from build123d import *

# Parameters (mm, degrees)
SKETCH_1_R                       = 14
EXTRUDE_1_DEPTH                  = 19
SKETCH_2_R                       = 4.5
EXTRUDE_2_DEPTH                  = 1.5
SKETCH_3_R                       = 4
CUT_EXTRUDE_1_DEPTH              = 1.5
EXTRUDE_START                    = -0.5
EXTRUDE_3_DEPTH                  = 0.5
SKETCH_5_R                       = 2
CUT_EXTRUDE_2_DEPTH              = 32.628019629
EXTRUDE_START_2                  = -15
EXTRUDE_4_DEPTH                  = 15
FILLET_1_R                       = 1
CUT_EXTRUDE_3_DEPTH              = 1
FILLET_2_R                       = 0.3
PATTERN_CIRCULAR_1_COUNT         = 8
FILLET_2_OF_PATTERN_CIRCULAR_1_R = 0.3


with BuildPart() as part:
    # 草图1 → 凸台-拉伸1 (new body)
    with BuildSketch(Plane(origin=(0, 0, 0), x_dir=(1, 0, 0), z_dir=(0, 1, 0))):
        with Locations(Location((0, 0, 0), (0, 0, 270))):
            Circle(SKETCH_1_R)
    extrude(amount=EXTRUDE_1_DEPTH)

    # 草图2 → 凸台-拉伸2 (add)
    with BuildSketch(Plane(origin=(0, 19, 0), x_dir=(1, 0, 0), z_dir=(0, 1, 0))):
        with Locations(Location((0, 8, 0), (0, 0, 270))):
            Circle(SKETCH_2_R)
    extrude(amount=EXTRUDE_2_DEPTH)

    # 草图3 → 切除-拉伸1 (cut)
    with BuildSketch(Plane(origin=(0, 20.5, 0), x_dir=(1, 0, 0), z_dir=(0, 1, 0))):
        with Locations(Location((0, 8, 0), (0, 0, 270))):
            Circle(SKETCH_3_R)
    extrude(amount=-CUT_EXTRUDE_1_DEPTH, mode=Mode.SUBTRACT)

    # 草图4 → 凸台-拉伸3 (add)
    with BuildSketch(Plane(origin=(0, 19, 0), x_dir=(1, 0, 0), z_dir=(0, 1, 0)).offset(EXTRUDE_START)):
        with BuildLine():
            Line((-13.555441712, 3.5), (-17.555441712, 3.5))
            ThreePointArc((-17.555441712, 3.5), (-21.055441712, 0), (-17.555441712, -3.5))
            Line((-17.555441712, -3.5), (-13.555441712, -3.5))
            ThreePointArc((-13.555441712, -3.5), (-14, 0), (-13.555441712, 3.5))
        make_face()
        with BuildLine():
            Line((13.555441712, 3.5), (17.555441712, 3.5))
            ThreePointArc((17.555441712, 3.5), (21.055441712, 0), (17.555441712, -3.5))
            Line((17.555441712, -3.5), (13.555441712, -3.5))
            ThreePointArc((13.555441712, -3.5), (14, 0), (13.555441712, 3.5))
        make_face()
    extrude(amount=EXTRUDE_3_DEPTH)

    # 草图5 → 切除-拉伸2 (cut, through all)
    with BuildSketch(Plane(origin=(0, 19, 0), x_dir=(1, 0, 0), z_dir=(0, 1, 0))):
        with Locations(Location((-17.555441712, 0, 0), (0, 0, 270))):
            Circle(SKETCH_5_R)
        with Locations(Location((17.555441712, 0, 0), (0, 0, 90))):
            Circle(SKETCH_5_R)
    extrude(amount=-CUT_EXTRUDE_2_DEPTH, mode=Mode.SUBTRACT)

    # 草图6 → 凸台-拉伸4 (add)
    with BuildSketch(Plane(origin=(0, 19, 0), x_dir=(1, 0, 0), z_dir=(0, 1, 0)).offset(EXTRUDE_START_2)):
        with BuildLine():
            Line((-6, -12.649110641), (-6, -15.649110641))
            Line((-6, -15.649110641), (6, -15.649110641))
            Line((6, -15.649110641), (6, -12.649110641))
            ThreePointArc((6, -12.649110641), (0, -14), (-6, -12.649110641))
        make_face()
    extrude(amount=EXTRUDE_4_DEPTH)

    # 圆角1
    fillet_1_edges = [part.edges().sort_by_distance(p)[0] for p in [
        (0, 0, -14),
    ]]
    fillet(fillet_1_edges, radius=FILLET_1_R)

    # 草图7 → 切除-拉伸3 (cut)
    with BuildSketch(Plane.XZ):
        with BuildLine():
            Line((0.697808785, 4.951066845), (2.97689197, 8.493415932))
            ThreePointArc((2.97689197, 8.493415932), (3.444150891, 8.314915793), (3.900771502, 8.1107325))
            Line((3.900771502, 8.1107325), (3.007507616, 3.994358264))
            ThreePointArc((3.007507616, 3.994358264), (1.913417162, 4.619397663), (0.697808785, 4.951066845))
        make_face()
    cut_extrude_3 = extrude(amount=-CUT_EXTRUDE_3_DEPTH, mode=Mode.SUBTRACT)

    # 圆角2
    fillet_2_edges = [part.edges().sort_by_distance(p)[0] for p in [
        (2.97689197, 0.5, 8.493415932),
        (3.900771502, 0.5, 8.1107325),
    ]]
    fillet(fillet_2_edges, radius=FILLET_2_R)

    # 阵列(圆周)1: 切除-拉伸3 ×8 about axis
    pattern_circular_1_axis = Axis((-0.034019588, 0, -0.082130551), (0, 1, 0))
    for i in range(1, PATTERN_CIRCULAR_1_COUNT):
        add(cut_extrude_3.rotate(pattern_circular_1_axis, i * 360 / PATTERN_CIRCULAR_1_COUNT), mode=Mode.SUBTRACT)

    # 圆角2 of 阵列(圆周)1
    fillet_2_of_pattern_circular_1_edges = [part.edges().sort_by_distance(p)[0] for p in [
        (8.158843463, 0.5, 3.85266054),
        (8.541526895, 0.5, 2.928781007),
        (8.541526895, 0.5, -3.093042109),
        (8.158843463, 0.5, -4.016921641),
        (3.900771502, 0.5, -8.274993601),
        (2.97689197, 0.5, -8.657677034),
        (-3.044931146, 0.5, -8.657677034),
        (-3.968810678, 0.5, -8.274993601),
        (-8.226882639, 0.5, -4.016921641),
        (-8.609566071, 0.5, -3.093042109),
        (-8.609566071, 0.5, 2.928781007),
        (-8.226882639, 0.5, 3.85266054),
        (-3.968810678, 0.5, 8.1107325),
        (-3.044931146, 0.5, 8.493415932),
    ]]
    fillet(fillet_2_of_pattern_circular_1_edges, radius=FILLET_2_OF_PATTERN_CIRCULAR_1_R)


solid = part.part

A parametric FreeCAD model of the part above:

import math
import FreeCAD as App
import Part
import Sketcher
from FreeCAD import Vector


def edges_at(feature, points):
    """Names of the edges that pass closest to the given points."""
    edges = feature.Shape.Edges
    near = lambda p: min(range(len(edges)), key=lambda i: edges[i].distToShape(Part.Vertex(*p))[0])
    return sorted({f"Edge{near(p) + 1}" for p in points})

doc = App.newDocument("Part")
params = doc.addObject("Spreadsheet::Sheet", "Params")
for row, (alias, value) in enumerate([
    ("sketch1_diameter", "28 mm"),
    ("pad1_length", "19 mm"),
    ("sketch2_diameter", "9 mm"),
    ("pad2_length", "1.5 mm"),
    ("sketch3_diameter", "8 mm"),
    ("pocket1_length", "1.5 mm"),
    ("sketch4_radius", "14 mm"),
    ("sketch4_radius2", "3.5 mm"),
    ("sketch4_width", "4 mm"),
    ("pad3_length", "0.5 mm"),
    ("sketch5_diameter", "4 mm"),
    ("sketch6_radius", "14 mm"),
    ("sketch6_width", "12 mm"),
    ("sketch6_height", "3 mm"),
    ("pad4_length", "15 mm"),
    ("fillet_radius", "1 mm"),
    ("sketch7_radius", "5 mm"),
    ("sketch7_radius2", "9 mm"),
    ("pocket3_length", "1 mm"),
    ("fillet2_radius", "0.3 mm"),
    ("fillet3_radius", "0.3 mm"),
], start=1):
    params.set(f"A{row}", alias)
    params.set(f"B{row}", "=" + value)
    params.setAlias(f"B{row}", alias)

body = doc.addObject("PartDesign::Body", "Body")

# Sketch on XZ plane
sketch1 = doc.addObject("Sketcher::SketchObject", "Sketch")
body.addObject(sketch1)
sketch1.AttachmentSupport = (doc.XZ_Plane, [""])
sketch1.MapMode = "FlatFace"
sketch1.addGeometry(Part.Circle(Vector(0, 0, 0), Vector(0, 0, 1), 14), False)
sketch1.addConstraint([
    Sketcher.Constraint("Coincident", 0, 3, -1, 1),
    Sketcher.Constraint("Diameter", 0, 28.0),
])
sketch1.setExpression("Constraints[1]", "Params.sketch1_diameter")
pad1 = doc.addObject("PartDesign::Pad", "Pad")
body.addObject(pad1)
pad1.Profile = sketch1
pad1.setExpression("Length", "Params.pad1_length")
pad1.Reversed = True

# Sketch on XZ plane
sketch2 = doc.addObject("Sketcher::SketchObject", "Sketch001")
body.addObject(sketch2)
sketch2.AttachmentSupport = (doc.XZ_Plane, [""])
sketch2.MapMode = "FlatFace"
sketch2.AttachmentOffset = App.Placement(Vector(0, 0, -19), App.Rotation())
sketch2.addGeometry(Part.Circle(Vector(0, -8, 0), Vector(0, 0, 1), 4.5), False)
sketch2.addConstraint([
    Sketcher.Constraint("PointOnObject", 0, 3, -2),
    Sketcher.Constraint("Diameter", 0, 9.0),
    Sketcher.Constraint("DistanceY", 0, 3, -1, 1, 8.0),
])
sketch2.setExpression("Constraints[1]", "Params.sketch2_diameter")
pad2 = doc.addObject("PartDesign::Pad", "Pad001")
body.addObject(pad2)
pad2.Profile = sketch2
pad2.setExpression("Length", "Params.pad2_length")
pad2.Reversed = True

# Sketch on XZ plane
sketch3 = doc.addObject("Sketcher::SketchObject", "Sketch002")
body.addObject(sketch3)
sketch3.AttachmentSupport = (doc.XZ_Plane, [""])
sketch3.MapMode = "FlatFace"
sketch3.AttachmentOffset = App.Placement(Vector(0, 0, -20.5), App.Rotation())
sketch3.addGeometry(Part.Circle(Vector(0, -8, 0), Vector(0, 0, 1), 4), False)
sketch3.addConstraint([
    Sketcher.Constraint("PointOnObject", 0, 3, -2),
    Sketcher.Constraint("Diameter", 0, 8.0),
    Sketcher.Constraint("DistanceY", 0, 3, -1, 1, 8.0),
])
sketch3.setExpression("Constraints[1]", "Params.sketch3_diameter")
pocket1 = doc.addObject("PartDesign::Pocket", "Pocket")
body.addObject(pocket1)
pocket1.Profile = sketch3
pocket1.setExpression("Length", "Params.pocket1_length")
pocket1.Reversed = True

# Sketch on XZ plane
sketch4 = doc.addObject("Sketcher::SketchObject", "Sketch003")
body.addObject(sketch4)
sketch4.AttachmentSupport = (doc.XZ_Plane, [""])
sketch4.MapMode = "FlatFace"
sketch4.AttachmentOffset = App.Placement(Vector(0, 0, -18.5), App.Rotation())
sketch4.addGeometry([
    Part.LineSegment(Vector(-13.555442, -3.5, 0), Vector(-17.555442, -3.5, 0)),  # 0
    Part.ArcOfCircle(Part.Circle(Vector(-17.555442, 0, 0), Vector(0, 0, 1), 3.5), math.radians(90), math.radians(270)),  # 1
    Part.LineSegment(Vector(-17.555442, 3.5, 0), Vector(-13.555442, 3.5, 0)),  # 2
    Part.ArcOfCircle(Part.Circle(Vector(0, 0, 0), Vector(0, 0, 1), 14), math.radians(165.522488), math.radians(194.477512)),  # 3
    Part.LineSegment(Vector(17.555442, -3.5, 0), Vector(13.555442, -3.5, 0)),  # 4
    Part.ArcOfCircle(Part.Circle(Vector(0, 0, 0), Vector(0, 0, 1), 14), math.radians(-14.477512), math.radians(14.477512)),  # 5
    Part.LineSegment(Vector(13.555442, 3.5, 0), Vector(17.555442, 3.5, 0)),  # 6
    Part.ArcOfCircle(Part.Circle(Vector(17.555442, 0, 0), Vector(0, 0, 1), 3.5), math.radians(-90), math.radians(90)),  # 7
], False)
sketch4.addConstraint([
    Sketcher.Constraint("Tangent", 0, 2, 1, 2),
    Sketcher.Constraint("Tangent", 1, 1, 2, 1),
    Sketcher.Constraint("Coincident", 2, 2, 3, 1),
    Sketcher.Constraint("Coincident", 3, 2, 0, 1),
    Sketcher.Constraint("Coincident", 4, 2, 5, 1),
    Sketcher.Constraint("Coincident", 5, 2, 6, 1),
    Sketcher.Constraint("Tangent", 6, 2, 7, 2),
    Sketcher.Constraint("Tangent", 7, 1, 4, 1),
    Sketcher.Constraint("Horizontal", 0),
    Sketcher.Constraint("Horizontal", 2),
    Sketcher.Constraint("Horizontal", 4),
    Sketcher.Constraint("Horizontal", 6),
    Sketcher.Constraint("Coincident", 3, 3, -1, 1),
    Sketcher.Constraint("Coincident", 5, 3, -1, 1),
    Sketcher.Constraint("Equal", 3, 5),
    Sketcher.Constraint("Equal", 1, 7),
    Sketcher.Constraint("Symmetric", 1, 3, 7, 3, -1, 1),
    Sketcher.Constraint("PointOnObject", 1, 3, -1),
    Sketcher.Constraint("Radius", 3, 14.0),
    Sketcher.Constraint("Radius", 1, 3.5),
    Sketcher.Constraint("DistanceX", 0, 2, 0, 1, 4.0),
])
sketch4.setExpression("Constraints[18]", "Params.sketch4_radius")
sketch4.setExpression("Constraints[19]", "Params.sketch4_radius2")
sketch4.setExpression("Constraints[20]", "Params.sketch4_width")
pad3 = doc.addObject("PartDesign::Pad", "Pad002")
body.addObject(pad3)
pad3.Profile = sketch4
pad3.setExpression("Length", "Params.pad3_length")
pad3.Reversed = True

# Sketch on XZ plane
sketch5 = doc.addObject("Sketcher::SketchObject", "Sketch004")
body.addObject(sketch5)
sketch5.AttachmentSupport = (doc.XZ_Plane, [""])
sketch5.MapMode = "FlatFace"
sketch5.AttachmentOffset = App.Placement(Vector(0, 0, -19), App.Rotation())
sketch5.addGeometry([
    Part.Circle(Vector(-17.555442, 0, 0), Vector(0, 0, 1), 2),
    Part.Circle(Vector(17.555442, 0, 0), Vector(0, 0, 1), 2),
], False)
sketch5.addConstraint([
    Sketcher.Constraint("Equal", 0, 1),
    Sketcher.Constraint("Symmetric", 0, 3, 1, 3, -1, 1),
    Sketcher.Constraint("PointOnObject", 0, 3, -1),
    Sketcher.Constraint("Diameter", 0, 4.0),
    Sketcher.Constraint("DistanceX", 0, 3, -1, 1, 17.555442),
])
sketch5.setExpression("Constraints[3]", "Params.sketch5_diameter")
pocket2 = doc.addObject("PartDesign::Pocket", "Pocket001")
body.addObject(pocket2)
pocket2.Profile = sketch5
pocket2.Type = "ThroughAll"
pocket2.Reversed = True

# Sketch on XZ plane
sketch6 = doc.addObject("Sketcher::SketchObject", "Sketch005")
body.addObject(sketch6)
sketch6.AttachmentSupport = (doc.XZ_Plane, [""])
sketch6.MapMode = "FlatFace"
sketch6.AttachmentOffset = App.Placement(Vector(0, 0, -4), App.Rotation())
sketch6.addGeometry([
    Part.LineSegment(Vector(-6, 12.649111, 0), Vector(-6, 15.649111, 0)),
    Part.LineSegment(Vector(-6, 15.649111, 0), Vector(6, 15.649111, 0)),
    Part.LineSegment(Vector(6, 15.649111, 0), Vector(6, 12.649111, 0)),
    Part.ArcOfCircle(Part.Circle(Vector(0, 0, 0), Vector(0, 0, 1), 14), math.radians(64.623066), math.radians(115.376934)),
], False)
sketch6.addConstraint([
    Sketcher.Constraint("Coincident", 0, 2, 1, 1),
    Sketcher.Constraint("Coincident", 1, 2, 2, 1),
    Sketcher.Constraint("Coincident", 2, 2, 3, 1),
    Sketcher.Constraint("Coincident", 3, 2, 0, 1),
    Sketcher.Constraint("Vertical", 0),
    Sketcher.Constraint("Horizontal", 1),
    Sketcher.Constraint("Vertical", 2),
    Sketcher.Constraint("Coincident", 3, 3, -1, 1),
    Sketcher.Constraint("Horizontal", 2, 2, 3, 2),
    Sketcher.Constraint("Radius", 3, 14.0),
    Sketcher.Constraint("DistanceX", 1, 1, 1, 2, 12.0),
    Sketcher.Constraint("DistanceY", 0, 1, 0, 2, 3.0),
])
sketch6.setExpression("Constraints[9]", "Params.sketch6_radius")
sketch6.setExpression("Constraints[10]", "Params.sketch6_width")
sketch6.setExpression("Constraints[11]", "Params.sketch6_height")
pad4 = doc.addObject("PartDesign::Pad", "Pad003")
body.addObject(pad4)
pad4.Profile = sketch6
pad4.setExpression("Length", "Params.pad4_length")
pad4.Reversed = True
doc.recompute()

fillet = doc.addObject("PartDesign::Fillet", "Fillet")
body.addObject(fillet)
fillet.Base = (pad4, edges_at(pad4, [(0, 0, -14)]))
fillet.setExpression("Radius", "Params.fillet_radius")

# Sketch on XZ plane
sketch7 = doc.addObject("Sketcher::SketchObject", "Sketch006")
body.addObject(sketch7)
sketch7.AttachmentSupport = (doc.XZ_Plane, [""])
sketch7.MapMode = "FlatFace"
sketch7.addGeometry([
    Part.LineSegment(Vector(2.976892, 8.493416, 0), Vector(0.697809, 4.951067, 0)),
    Part.ArcOfCircle(Part.Circle(Vector(0, 0, 0), Vector(0, 0, 1), 5), math.radians(53.022488), math.radians(81.977512)),
    Part.LineSegment(Vector(3.007508, 3.994358, 0), Vector(3.900772, 8.110732, 0)),
    Part.ArcOfCircle(Part.Circle(Vector(0, 0, 0), Vector(0, 0, 1), 9), math.radians(64.315261), math.radians(70.684739)),
], False)
sketch7.addConstraint([
    Sketcher.Constraint("Coincident", 0, 2, 1, 2),
    Sketcher.Constraint("Coincident", 1, 1, 2, 1),
    Sketcher.Constraint("Coincident", 2, 2, 3, 1),
    Sketcher.Constraint("Coincident", 3, 2, 0, 1),
    Sketcher.Constraint("Coincident", 1, 3, -1, 1),
    Sketcher.Constraint("Coincident", 3, 3, -1, 1),
    Sketcher.Constraint("Equal", 0, 2),
    Sketcher.Constraint("Radius", 1, 5.0),
    Sketcher.Constraint("Radius", 3, 9.0),
    Sketcher.Constraint("DistanceX", 0, 2, 1, 1, 2.309699),
    Sketcher.Constraint("Distance", 0, 4.21218),
    Sketcher.Constraint("DistanceX", -1, 1, 0, 2, 0.697809),
])
sketch7.setExpression("Constraints[7]", "Params.sketch7_radius")
sketch7.setExpression("Constraints[8]", "Params.sketch7_radius2")
pocket3 = doc.addObject("PartDesign::Pocket", "Pocket002")
body.addObject(pocket3)
pocket3.Profile = sketch7
pocket3.setExpression("Length", "Params.pocket3_length")
doc.recompute()

fillet2 = doc.addObject("PartDesign::Fillet", "Fillet001")
body.addObject(fillet2)
fillet2.Base = (pocket3, edges_at(pocket3, [(2.977, 0.5, 8.493), (3.901, 0.5, 8.111)]))
fillet2.setExpression("Radius", "Params.fillet2_radius")
doc.recompute()

datumline = doc.addObject("PartDesign::Line", "DatumLine")
body.addObject(datumline)
datumline.Placement = App.Placement(Vector(-0.03402, 0, -0.082131), App.Rotation(Vector(0, 0, 1), Vector(0, 1, 0)))
polarpattern = doc.addObject("PartDesign::PolarPattern", "PolarPattern")
body.addObject(polarpattern)
polarpattern.Originals = [pocket3]
polarpattern.Axis = (datumline, [""])
polarpattern.Angle = 360
polarpattern.Occurrences = 8
body.Tip = polarpattern
doc.recompute()

fillet3 = doc.addObject("PartDesign::Fillet", "Fillet002")
body.addObject(fillet3)
fillet3.Base = (polarpattern, edges_at(polarpattern, [
    (8.159, 0.5, 3.853),
    (8.542, 0.5, 2.929),
    (8.542, 0.5, -3.093),
    (8.159, 0.5, -4.017),
    (3.901, 0.5, -8.275),
    (2.977, 0.5, -8.658),
    (-3.045, 0.5, -8.658),
    (-3.969, 0.5, -8.275),
    (-8.227, 0.5, -4.017),
    (-8.61, 0.5, -3.093),
    (-8.61, 0.5, 2.929),
    (-8.227, 0.5, 3.853),
    (-3.969, 0.5, 8.111),
    (-3.045, 0.5, 8.493),
]))
fillet3.setExpression("Radius", "Params.fillet3_radius")

doc.recompute()
